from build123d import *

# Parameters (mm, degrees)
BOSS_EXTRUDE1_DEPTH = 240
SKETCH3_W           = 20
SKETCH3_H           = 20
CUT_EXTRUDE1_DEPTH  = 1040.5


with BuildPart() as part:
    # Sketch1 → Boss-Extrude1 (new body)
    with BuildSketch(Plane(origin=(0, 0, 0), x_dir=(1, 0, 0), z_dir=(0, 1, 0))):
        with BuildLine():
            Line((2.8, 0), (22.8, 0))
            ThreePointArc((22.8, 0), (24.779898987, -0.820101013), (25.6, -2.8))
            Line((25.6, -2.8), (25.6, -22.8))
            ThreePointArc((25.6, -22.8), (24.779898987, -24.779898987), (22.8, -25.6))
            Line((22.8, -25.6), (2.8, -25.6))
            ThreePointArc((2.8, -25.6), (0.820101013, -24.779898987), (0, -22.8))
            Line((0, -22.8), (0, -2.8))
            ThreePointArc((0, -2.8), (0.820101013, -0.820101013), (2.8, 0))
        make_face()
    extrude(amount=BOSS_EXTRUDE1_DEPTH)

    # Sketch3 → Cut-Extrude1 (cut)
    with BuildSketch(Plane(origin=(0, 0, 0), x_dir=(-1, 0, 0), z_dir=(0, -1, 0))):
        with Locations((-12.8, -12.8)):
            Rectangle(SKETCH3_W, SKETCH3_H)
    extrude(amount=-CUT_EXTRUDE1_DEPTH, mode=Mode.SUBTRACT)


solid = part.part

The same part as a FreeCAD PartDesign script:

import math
import FreeCAD as App
import Part
import Sketcher
from FreeCAD import Vector
Q = App.Units.Quantity

doc = App.newDocument("Part")
body = doc.addObject("PartDesign::Body", "Body")

# Sketch on XZ plane
sketch1 = body.newObject("Sketcher::SketchObject", "Sketch")
sketch1.AttachmentSupport = (doc.getObject("XZ_Plane"), [""])
sketch1.MapMode = "FlatFace"
sketch1.addGeometry([
    Part.LineSegment(Vector(22.8, 0, 0), Vector(2.8, 0, 0)),  # 0
    Part.ArcOfCircle(Part.Circle(Vector(2.8, 2.8, 0), Vector(0, 0, 1), 2.8), math.radians(-180), math.radians(-90)),  # 1
    Part.LineSegment(Vector(0, 2.8, 0), Vector(0, 22.8, 0)),  # 2
    Part.ArcOfCircle(Part.Circle(Vector(2.8, 22.8, 0), Vector(0, 0, 1), 2.8), math.radians(90), math.radians(180)),  # 3
    Part.LineSegment(Vector(2.8, 25.6, 0), Vector(22.8, 25.6, 0)),  # 4
    Part.ArcOfCircle(Part.Circle(Vector(22.8, 22.8, 0), Vector(0, 0, 1), 2.8), math.radians(0), math.radians(90)),  # 5
    Part.LineSegment(Vector(25.6, 22.8, 0), Vector(25.6, 2.8, 0)),  # 6
    Part.ArcOfCircle(Part.Circle(Vector(22.8, 2.8, 0), Vector(0, 0, 1), 2.8), math.radians(-90), math.radians(0)),  # 7
], False)
sketch1.addConstraint([
    Sketcher.Constraint("Tangent", 0, 2, 1, 2),
    Sketcher.Constraint("Tangent", 1, 1, 2, 1),
    Sketcher.Constraint("Tangent", 2, 2, 3, 2),
    Sketcher.Constraint("Tangent", 3, 1, 4, 1),
    Sketcher.Constraint("Tangent", 4, 2, 5, 2),
    Sketcher.Constraint("Tangent", 5, 1, 6, 1),
    Sketcher.Constraint("Tangent", 6, 2, 7, 2),
    Sketcher.Constraint("Tangent", 7, 1, 0, 1),
    Sketcher.Constraint("Horizontal", 0),
    Sketcher.Constraint("Vertical", 2),
    Sketcher.Constraint("Horizontal", 4),
    Sketcher.Constraint("Vertical", 6),
    Sketcher.Constraint("Equal", 1, 3),
    Sketcher.Constraint("Equal", 3, 5),
    Sketcher.Constraint("Equal", 5, 7),
    Sketcher.Constraint("PointOnObject", 0, 2, -1),
    Sketcher.Constraint("PointOnObject", 1, 1, -2),
    Sketcher.Constraint("Equal", 4, 2),
    Sketcher.Constraint("Radius", 1, Q("2.8 mm")),
    Sketcher.Constraint("DistanceX", 0, 2, 0, 1, Q("20 mm")),
])
pad1 = body.newObject("PartDesign::Pad", "Pad")
pad1.Profile = sketch1
pad1.Length = 240
pad1.Reversed = True

# Sketch on XZ plane
sketch2 = body.newObject("Sketcher::SketchObject", "Sketch001")
sketch2.AttachmentSupport = (doc.getObject("XZ_Plane"), [""])
sketch2.MapMode = "FlatFace"
sketch2.addGeometry([
    Part.LineSegment(Vector(23, 3, 0), Vector(23, 23, 0)),
    Part.LineSegment(Vector(23, 23, 0), Vector(3, 23, 0)),
    Part.LineSegment(Vector(3, 23, 0), Vector(3, 3, 0)),
    Part.LineSegment(Vector(3, 3, 0), Vector(23, 3, 0)),
], False)
sketch2.addConstraint([
    Sketcher.Constraint("Coincident", 0, 2, 1, 1),
    Sketcher.Constraint("Coincident", 1, 2, 2, 1),
    Sketcher.Constraint("Coincident", 2, 2, 3, 1),
    Sketcher.Constraint("Coincident", 3, 2, 0, 1),
    Sketcher.Constraint("Vertical", 0),
    Sketcher.Constraint("Horizontal", 1),
    Sketcher.Constraint("Vertical", 2),
    Sketcher.Constraint("Horizontal", 3),
    Sketcher.Constraint("Equal", 3, 0),
    Sketcher.Constraint("DistanceX", 1, 2, 1, 1, Q("20 mm")),
    Sketcher.Constraint("DistanceX", -1, 1, 0, 2, Q("22.8 mm")),
    Sketcher.Constraint("DistanceY", -1, 1, 0, 2, Q("22.8 mm")),
])
pocket1 = body.newObject("PartDesign::Pocket", "Pocket")
pocket1.Profile = sketch2
pocket1.Length = 1040.5

doc.recompute()
